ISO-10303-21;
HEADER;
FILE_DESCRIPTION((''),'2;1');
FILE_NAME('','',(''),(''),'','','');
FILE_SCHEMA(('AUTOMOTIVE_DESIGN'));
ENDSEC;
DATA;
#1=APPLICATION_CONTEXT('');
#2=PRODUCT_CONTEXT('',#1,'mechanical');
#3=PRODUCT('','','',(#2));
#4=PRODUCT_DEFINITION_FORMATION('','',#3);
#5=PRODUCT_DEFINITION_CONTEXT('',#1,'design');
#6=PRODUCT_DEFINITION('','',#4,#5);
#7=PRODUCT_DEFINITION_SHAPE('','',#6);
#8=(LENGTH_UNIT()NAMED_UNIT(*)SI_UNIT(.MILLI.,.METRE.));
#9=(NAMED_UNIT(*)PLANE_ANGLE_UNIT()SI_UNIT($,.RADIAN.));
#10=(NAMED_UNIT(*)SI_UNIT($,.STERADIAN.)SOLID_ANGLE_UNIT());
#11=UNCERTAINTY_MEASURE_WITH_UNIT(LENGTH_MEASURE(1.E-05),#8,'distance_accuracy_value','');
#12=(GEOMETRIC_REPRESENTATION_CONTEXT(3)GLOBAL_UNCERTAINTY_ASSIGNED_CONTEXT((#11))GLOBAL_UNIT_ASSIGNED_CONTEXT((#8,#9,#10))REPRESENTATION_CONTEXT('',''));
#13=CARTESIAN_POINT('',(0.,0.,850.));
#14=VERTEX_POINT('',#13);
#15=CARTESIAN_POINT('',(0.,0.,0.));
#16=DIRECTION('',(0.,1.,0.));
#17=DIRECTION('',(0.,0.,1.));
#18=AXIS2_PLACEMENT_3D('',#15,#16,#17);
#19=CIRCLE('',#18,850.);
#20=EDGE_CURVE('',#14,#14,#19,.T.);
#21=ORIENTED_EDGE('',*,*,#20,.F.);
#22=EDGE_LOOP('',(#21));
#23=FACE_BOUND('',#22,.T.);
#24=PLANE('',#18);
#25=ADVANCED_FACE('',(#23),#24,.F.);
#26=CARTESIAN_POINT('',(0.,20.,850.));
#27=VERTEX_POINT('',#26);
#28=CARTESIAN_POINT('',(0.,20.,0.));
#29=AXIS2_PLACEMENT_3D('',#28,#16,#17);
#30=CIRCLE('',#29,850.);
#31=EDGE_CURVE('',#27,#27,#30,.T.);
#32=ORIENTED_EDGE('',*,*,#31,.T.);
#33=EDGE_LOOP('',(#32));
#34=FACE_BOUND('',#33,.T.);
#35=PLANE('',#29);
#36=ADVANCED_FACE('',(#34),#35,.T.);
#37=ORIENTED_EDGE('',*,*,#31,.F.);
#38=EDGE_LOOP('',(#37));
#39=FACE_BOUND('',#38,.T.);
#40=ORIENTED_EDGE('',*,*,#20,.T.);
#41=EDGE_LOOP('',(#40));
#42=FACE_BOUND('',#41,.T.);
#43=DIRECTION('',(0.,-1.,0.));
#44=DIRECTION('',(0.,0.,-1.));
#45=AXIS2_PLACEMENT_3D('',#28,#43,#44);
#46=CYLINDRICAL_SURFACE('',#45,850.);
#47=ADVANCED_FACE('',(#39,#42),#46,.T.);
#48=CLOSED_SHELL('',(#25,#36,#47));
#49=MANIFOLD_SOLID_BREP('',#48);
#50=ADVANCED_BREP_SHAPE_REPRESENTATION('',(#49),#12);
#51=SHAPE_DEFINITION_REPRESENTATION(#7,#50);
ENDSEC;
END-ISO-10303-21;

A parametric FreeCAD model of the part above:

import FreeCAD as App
import Part
import Sketcher
from FreeCAD import Vector

doc = App.newDocument("Part")
body = doc.addObject("PartDesign::Body", "Body")

sketch1 = body.newObject("Sketcher::SketchObject", "Sketch")
sketch1.AttachmentSupport = (doc.getObject("XZ_Plane"), [""])
sketch1.MapMode = "FlatFace"
sketch1.addGeometry(Part.Circle(Vector(0, 0, 0), Vector(0, 0, 1), 850), False)
sketch1.addConstraint(Sketcher.Constraint("Coincident", 0, 3, -1, 1))
sketch1.addConstraint(Sketcher.Constraint("Diameter", 0, 1700.0))
pad1 = body.newObject("PartDesign::Pad", "Pad")
pad1.Profile = sketch1
pad1.Length = 20
pad1.Reversed = True

doc.recompute()
